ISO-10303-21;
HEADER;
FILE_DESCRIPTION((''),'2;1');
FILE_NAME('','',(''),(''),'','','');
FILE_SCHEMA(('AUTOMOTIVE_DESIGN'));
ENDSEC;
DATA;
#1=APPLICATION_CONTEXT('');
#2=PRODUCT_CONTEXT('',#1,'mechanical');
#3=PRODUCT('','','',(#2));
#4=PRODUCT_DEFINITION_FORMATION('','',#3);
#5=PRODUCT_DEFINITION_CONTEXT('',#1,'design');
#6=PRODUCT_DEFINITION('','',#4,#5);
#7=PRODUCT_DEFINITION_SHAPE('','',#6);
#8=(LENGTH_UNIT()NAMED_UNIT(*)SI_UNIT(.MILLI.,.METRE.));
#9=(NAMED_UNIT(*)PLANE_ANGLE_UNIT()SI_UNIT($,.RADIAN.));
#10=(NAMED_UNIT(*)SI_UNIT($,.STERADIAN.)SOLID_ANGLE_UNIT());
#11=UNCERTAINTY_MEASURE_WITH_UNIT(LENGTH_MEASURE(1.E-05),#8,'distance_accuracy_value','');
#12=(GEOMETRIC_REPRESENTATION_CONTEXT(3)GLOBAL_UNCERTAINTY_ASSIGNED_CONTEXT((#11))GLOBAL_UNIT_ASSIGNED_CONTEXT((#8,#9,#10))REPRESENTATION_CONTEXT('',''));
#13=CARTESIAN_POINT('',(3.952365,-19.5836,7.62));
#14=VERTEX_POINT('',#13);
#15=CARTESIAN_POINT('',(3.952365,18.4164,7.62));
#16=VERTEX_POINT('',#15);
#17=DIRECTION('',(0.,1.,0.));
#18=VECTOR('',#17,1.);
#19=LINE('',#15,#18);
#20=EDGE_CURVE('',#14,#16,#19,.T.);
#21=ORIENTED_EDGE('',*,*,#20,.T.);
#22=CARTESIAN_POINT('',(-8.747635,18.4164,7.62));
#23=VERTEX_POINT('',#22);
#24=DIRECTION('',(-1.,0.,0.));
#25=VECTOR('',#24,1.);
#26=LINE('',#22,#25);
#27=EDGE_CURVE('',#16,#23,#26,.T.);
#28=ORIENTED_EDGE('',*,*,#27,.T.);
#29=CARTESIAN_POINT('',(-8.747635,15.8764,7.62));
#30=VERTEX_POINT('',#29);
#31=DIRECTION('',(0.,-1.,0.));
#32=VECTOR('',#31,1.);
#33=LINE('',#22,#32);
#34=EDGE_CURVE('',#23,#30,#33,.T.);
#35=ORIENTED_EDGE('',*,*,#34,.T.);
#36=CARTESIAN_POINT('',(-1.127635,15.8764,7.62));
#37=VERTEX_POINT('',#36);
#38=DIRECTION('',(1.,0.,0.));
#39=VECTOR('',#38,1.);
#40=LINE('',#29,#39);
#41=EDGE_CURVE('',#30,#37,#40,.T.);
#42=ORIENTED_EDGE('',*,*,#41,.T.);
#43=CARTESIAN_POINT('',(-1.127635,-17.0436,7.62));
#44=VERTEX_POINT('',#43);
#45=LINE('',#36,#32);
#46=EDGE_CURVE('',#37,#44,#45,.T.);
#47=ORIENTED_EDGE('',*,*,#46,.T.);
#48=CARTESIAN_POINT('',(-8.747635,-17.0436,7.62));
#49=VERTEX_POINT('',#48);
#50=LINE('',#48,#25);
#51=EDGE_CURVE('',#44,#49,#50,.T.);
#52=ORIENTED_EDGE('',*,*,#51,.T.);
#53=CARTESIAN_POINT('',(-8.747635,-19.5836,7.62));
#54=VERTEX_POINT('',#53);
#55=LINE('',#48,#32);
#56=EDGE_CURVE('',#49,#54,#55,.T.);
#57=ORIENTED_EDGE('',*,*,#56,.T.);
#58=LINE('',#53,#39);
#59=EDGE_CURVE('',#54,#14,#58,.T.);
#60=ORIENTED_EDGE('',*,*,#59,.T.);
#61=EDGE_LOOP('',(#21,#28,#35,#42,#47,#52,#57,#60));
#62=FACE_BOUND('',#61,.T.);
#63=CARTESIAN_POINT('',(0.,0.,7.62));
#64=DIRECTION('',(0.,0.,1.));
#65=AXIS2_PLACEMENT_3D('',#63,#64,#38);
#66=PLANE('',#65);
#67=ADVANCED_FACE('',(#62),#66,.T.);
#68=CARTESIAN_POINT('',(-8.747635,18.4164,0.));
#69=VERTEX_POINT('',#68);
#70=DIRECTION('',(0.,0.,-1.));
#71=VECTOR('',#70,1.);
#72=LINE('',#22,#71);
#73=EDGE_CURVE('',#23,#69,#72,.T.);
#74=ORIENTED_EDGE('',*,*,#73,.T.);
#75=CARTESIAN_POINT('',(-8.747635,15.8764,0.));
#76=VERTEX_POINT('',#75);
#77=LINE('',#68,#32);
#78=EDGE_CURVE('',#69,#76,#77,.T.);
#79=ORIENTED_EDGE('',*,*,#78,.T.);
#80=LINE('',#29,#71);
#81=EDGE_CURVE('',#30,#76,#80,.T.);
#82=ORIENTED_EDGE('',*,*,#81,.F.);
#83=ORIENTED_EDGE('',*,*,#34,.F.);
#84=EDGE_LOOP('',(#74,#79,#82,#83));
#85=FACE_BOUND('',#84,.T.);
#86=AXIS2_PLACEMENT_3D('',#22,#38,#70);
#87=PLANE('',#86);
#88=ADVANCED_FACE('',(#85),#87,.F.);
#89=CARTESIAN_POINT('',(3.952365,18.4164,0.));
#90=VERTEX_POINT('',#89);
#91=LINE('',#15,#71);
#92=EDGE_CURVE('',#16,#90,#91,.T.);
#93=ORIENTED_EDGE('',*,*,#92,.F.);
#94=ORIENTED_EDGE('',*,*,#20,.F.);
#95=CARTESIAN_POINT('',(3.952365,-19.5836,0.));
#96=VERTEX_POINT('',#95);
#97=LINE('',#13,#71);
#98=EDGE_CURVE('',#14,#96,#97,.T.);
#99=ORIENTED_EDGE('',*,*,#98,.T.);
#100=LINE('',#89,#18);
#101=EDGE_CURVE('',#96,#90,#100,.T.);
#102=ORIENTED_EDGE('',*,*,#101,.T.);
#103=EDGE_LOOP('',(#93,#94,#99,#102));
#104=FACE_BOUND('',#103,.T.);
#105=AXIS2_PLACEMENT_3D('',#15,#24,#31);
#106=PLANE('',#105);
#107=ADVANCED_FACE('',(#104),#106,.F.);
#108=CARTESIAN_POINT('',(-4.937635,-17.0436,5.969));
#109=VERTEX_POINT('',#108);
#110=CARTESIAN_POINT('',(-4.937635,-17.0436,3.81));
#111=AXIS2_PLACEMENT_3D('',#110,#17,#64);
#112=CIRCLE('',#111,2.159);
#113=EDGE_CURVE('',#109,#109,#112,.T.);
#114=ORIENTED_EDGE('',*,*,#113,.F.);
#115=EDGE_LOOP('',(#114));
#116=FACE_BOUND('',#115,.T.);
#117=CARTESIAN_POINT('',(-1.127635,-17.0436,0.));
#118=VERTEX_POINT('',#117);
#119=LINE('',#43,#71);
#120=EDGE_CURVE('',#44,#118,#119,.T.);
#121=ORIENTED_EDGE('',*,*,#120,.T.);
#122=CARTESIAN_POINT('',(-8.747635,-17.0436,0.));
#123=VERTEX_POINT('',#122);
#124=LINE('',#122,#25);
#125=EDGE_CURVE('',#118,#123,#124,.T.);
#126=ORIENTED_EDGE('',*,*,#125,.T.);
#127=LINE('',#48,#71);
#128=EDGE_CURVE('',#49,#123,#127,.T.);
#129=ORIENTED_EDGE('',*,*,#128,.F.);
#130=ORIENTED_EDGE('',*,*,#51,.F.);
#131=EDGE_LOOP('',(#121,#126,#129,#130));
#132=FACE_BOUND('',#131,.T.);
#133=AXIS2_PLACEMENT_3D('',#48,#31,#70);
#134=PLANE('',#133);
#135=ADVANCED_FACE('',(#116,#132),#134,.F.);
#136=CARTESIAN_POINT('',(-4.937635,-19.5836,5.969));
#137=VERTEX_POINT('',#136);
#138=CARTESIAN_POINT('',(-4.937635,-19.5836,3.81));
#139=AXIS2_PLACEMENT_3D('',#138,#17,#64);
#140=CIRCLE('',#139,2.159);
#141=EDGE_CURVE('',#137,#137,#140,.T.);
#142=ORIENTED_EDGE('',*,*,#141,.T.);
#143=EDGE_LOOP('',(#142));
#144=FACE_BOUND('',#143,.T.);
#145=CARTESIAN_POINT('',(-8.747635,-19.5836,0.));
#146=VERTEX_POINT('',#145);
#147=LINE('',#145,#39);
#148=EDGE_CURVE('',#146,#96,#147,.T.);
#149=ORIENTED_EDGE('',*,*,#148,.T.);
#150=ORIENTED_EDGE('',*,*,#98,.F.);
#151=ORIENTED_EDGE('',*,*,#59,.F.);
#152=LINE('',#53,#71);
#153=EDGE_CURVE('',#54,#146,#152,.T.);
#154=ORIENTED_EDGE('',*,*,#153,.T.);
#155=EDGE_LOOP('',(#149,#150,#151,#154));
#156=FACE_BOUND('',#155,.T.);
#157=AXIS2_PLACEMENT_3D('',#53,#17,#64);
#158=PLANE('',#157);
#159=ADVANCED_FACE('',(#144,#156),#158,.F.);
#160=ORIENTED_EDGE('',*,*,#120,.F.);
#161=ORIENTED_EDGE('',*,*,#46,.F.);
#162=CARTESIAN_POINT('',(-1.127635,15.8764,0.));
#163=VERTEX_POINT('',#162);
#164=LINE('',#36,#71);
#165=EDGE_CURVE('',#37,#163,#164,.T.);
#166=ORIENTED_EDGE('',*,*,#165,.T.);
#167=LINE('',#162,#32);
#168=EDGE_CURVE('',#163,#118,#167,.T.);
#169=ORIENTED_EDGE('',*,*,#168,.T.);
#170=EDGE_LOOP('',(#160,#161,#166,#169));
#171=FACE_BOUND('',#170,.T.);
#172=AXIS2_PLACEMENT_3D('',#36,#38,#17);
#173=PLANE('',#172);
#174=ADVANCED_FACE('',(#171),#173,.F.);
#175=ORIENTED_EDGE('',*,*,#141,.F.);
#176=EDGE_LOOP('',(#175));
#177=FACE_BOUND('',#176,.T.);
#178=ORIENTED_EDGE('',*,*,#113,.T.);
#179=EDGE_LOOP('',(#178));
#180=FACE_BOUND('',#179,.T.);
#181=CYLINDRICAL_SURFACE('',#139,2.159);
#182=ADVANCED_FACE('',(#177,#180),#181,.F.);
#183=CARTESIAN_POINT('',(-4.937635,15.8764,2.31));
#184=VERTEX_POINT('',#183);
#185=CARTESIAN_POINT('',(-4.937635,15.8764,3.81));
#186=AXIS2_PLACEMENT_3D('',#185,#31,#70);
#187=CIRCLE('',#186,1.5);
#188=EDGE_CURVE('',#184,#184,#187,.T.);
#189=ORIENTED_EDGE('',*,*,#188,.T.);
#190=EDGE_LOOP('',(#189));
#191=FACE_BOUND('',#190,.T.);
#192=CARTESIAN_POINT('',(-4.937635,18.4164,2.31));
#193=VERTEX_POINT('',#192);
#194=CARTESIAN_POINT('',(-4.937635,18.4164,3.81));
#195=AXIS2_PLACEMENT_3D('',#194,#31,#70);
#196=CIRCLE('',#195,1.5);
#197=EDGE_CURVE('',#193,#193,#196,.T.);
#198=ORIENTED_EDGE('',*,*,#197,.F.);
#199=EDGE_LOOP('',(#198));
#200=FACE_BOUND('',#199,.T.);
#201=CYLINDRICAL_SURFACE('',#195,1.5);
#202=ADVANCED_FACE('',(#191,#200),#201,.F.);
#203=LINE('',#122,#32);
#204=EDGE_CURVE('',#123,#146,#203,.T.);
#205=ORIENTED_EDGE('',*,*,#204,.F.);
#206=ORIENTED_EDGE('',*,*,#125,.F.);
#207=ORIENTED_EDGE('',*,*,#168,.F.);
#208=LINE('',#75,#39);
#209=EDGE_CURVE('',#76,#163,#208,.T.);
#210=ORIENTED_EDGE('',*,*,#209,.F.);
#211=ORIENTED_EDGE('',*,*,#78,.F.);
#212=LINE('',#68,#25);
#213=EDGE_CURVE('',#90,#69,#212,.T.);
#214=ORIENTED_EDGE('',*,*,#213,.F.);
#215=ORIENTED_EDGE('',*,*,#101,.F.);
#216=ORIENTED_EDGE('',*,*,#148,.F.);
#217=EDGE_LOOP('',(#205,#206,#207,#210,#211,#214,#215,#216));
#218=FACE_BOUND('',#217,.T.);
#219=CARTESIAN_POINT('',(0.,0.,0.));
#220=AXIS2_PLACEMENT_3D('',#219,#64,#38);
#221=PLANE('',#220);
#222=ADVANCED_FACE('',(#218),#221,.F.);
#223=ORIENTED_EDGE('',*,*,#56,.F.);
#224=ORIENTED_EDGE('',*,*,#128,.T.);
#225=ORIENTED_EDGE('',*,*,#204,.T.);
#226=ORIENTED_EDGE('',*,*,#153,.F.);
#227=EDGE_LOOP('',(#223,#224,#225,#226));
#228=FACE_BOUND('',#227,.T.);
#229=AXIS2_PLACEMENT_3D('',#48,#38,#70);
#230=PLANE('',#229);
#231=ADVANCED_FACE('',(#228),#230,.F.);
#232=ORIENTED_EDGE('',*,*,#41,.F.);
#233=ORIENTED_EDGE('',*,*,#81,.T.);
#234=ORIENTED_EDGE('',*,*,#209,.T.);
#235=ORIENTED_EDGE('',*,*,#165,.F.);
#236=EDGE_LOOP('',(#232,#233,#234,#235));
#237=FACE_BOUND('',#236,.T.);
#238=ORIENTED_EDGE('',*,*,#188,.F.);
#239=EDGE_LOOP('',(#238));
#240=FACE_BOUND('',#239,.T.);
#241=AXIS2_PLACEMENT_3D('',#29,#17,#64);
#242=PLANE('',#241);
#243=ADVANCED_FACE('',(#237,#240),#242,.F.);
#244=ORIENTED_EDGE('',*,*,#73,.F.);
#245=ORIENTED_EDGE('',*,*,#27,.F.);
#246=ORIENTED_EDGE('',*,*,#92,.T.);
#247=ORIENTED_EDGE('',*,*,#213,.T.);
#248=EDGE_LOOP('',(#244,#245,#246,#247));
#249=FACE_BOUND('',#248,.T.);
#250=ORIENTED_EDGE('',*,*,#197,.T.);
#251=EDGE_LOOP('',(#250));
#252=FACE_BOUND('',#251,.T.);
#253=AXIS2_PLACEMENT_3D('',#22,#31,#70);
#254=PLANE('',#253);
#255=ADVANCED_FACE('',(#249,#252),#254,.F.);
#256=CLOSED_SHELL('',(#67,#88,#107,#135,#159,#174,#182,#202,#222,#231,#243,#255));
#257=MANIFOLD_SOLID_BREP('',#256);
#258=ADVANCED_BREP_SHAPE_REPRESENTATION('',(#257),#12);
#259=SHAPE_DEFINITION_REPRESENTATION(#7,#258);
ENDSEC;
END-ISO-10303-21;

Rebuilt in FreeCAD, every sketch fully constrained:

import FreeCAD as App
import Part
import Sketcher

V = App.Vector
Q = App.Units.Quantity

doc = App.newDocument("Part")
params = doc.addObject("Spreadsheet::Sheet", "Params")
for row, (alias, value) in enumerate([
    ("sketch1_width", "0.5 in"),
    ("sketch1_width2", "0.3 in"),
    ("sketch1_height", "0.1 in"),
    ("pad1_length", "0.3 in"),
    ("sketch2_diameter", "0.17 in"),
], start=1):
    params.set(f"A{row}", alias)
    params.set(f"B{row}", "=" + value)
    params.setAlias(f"B{row}", alias)

body = doc.addObject("PartDesign::Body", "Body")

# Sketch on XY plane
sketch1 = body.newObject("Sketcher::SketchObject", "Sketch")
sketch1.AttachmentSupport = (doc.getObject("XY_Plane"), [""])
sketch1.MapMode = "FlatFace"
sketch1.addGeometry(Part.LineSegment(V(-8.7, -17, 0), V(-8.7, -19.6, 0)), False)
sketch1.addGeometry(Part.LineSegment(V(-8.7, -19.6, 0), V(4, -19.6, 0)), False)
sketch1.addGeometry(Part.LineSegment(V(4, -19.6, 0), V(4, 18.4, 0)), False)
sketch1.addGeometry(Part.LineSegment(V(4, 18.4, 0), V(-8.7, 18.4, 0)), False)
sketch1.addGeometry(Part.LineSegment(V(-8.7, 18.4, 0), V(-8.7, 15.9, 0)), False)
sketch1.addGeometry(Part.LineSegment(V(-8.7, 15.9, 0), V(-1.1, 15.9, 0)), False)
sketch1.addGeometry(Part.LineSegment(V(-1.1, 15.9, 0), V(-1.1, -17, 0)), False)
sketch1.addGeometry(Part.LineSegment(V(-1.1, -17, 0), V(-8.7, -17, 0)), False)
sketch1.addConstraint(Sketcher.Constraint("Coincident", 0, 2, 1, 1))
sketch1.addConstraint(Sketcher.Constraint("Coincident", 1, 2, 2, 1))
sketch1.addConstraint(Sketcher.Constraint("Coincident", 2, 2, 3, 1))
sketch1.addConstraint(Sketcher.Constraint("Coincident", 3, 2, 4, 1))
sketch1.addConstraint(Sketcher.Constraint("Coincident", 4, 2, 5, 1))
sketch1.addConstraint(Sketcher.Constraint("Coincident", 5, 2, 6, 1))
sketch1.addConstraint(Sketcher.Constraint("Coincident", 6, 2, 7, 1))
sketch1.addConstraint(Sketcher.Constraint("Coincident", 7, 2, 0, 1))
sketch1.addConstraint(Sketcher.Constraint("Vertical", 0))
sketch1.addConstraint(Sketcher.Constraint("Horizontal", 1))
sketch1.addConstraint(Sketcher.Constraint("Vertical", 2))
sketch1.addConstraint(Sketcher.Constraint("Horizontal", 3))
sketch1.addConstraint(Sketcher.Constraint("Vertical", 4))
sketch1.addConstraint(Sketcher.Constraint("Horizontal", 5))
sketch1.addConstraint(Sketcher.Constraint("Vertical", 6))
sketch1.addConstraint(Sketcher.Constraint("Horizontal", 7))
sketch1.addConstraint(Sketcher.Constraint("Vertical", 0, 2, 3, 2))
sketch1.addConstraint(Sketcher.Constraint("Equal", 0, 4))
sketch1.addConstraint(Sketcher.Constraint("DistanceX", 1, 1, 1, 2, Q("0.5 in")))
sketch1.addConstraint(Sketcher.Constraint("DistanceX", 5, 1, 5, 2, Q("0.3 in")))
sketch1.addConstraint(Sketcher.Constraint("DistanceY", 0, 2, 0, 1, Q("0.1 in")))
sketch1.addConstraint(Sketcher.Constraint("DistanceY", 2, 1, 2, 2, Q("38 mm")))
sketch1.addConstraint(Sketcher.Constraint("DistanceY", 0, 2, -1, 1, Q("19.5836 mm")))
sketch1.addConstraint(Sketcher.Constraint("DistanceX", 0, 2, -1, 1, Q("8.747635 mm")))
sketch1.setExpression("Constraints[18]", "Params.sketch1_width")
sketch1.setExpression("Constraints[19]", "Params.sketch1_width2")
sketch1.setExpression("Constraints[20]", "Params.sketch1_height")
pad1 = body.newObject("PartDesign::Pad", "Pad")
pad1.Profile = sketch1
pad1.setExpression("Length", "Params.pad1_length")

# Sketch on XZ plane
sketch2 = body.newObject("Sketcher::SketchObject", "Sketch001")
sketch2.AttachmentSupport = (doc.getObject("XZ_Plane"), [""])
sketch2.MapMode = "FlatFace"
sketch2.AttachmentOffset = App.Placement(V(0, 0, 17.0436), App.Rotation())
sketch2.addGeometry(Part.Circle(V(-4.9, 3.8, 0), V(0, 0, 1), 2.2), False)
sketch2.addConstraint(Sketcher.Constraint("Diameter", 0, Q("0.17 in")))
sketch2.addConstraint(Sketcher.Constraint("DistanceY", -1, 1, 0, 3, Q("0.15 in")))
sketch2.addConstraint(Sketcher.Constraint("DistanceX", 0, 3, -1, 1, Q("4.937635 mm")))
sketch2.setExpression("Constraints[0]", "Params.sketch2_diameter")
pocket1 = body.newObject("PartDesign::Pocket", "Pocket")
pocket1.Profile = sketch2
pocket1.Type = "ThroughAll"
pocket1.Reversed = True

# Sketch on XZ plane
sketch3 = body.newObject("Sketcher::SketchObject", "Sketch002")
sketch3.AttachmentSupport = (doc.getObject("XZ_Plane"), [""])
sketch3.MapMode = "FlatFace"
sketch3.AttachmentOffset = App.Placement(V(0, 0, -15.8764), App.Rotation())
sketch3.addGeometry(Part.Circle(V(-4.9, 3.8, 0), V(0, 0, 1), 1.5), False)
sketch3.addConstraint(Sketcher.Constraint("Diameter", 0, Q("3 mm")))
sketch3.addConstraint(Sketcher.Constraint("DistanceY", -1, 1, 0, 3, Q("0.15 in")))
sketch3.addConstraint(Sketcher.Constraint("DistanceX", 0, 3, -1, 1, Q("4.937635 mm")))
pocket2 = body.newObject("PartDesign::Pocket", "Pocket001")
pocket2.Profile = sketch3
pocket2.Type = "ThroughAll"

doc.recompute()
